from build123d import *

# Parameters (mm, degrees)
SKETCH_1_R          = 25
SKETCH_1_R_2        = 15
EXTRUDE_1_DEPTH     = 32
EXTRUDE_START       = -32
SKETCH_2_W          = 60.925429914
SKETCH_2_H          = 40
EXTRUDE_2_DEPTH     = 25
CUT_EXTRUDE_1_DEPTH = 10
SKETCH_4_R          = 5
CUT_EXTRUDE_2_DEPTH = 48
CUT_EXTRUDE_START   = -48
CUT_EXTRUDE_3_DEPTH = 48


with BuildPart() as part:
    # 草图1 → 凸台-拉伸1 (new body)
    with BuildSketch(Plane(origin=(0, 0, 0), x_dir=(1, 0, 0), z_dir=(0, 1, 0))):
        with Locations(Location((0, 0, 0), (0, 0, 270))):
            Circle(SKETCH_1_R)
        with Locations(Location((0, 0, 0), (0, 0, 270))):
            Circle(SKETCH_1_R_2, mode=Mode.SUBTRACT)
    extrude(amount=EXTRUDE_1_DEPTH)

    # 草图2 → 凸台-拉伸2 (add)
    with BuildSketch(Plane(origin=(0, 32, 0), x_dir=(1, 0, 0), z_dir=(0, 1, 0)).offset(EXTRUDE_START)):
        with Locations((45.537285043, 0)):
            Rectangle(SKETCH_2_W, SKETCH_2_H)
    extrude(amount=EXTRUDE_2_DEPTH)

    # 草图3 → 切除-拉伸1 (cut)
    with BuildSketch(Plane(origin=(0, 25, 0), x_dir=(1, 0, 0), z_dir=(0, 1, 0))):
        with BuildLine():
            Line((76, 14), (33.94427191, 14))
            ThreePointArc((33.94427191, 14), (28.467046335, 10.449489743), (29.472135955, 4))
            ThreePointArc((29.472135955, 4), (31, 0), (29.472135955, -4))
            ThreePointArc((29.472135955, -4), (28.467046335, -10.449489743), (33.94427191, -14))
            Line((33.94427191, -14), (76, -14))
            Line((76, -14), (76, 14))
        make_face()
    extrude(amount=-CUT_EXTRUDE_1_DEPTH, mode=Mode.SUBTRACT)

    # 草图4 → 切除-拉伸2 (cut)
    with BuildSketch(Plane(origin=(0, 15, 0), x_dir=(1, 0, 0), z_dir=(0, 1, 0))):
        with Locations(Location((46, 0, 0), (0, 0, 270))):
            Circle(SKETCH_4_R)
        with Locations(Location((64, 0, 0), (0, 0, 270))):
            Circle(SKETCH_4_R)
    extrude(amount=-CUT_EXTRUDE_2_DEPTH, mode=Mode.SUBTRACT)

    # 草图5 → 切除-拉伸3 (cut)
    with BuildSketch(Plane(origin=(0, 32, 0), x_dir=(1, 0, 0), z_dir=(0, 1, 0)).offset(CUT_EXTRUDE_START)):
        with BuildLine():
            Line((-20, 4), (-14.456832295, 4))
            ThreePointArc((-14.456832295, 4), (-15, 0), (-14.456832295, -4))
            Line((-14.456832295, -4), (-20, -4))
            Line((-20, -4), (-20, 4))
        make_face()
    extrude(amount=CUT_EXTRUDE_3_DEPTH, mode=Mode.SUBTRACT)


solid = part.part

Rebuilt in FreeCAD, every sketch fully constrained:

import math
import FreeCAD as App
import Part
import Sketcher
from FreeCAD import Vector


def add_polygon(sketch, points):
    """Adds a closed chain of lines whose ends are joined by coincident constraints."""
    first, n = sketch.GeometryCount, len(points)
    for a, b in zip(points, points[1:] + points[:1]):
        sketch.addGeometry(Part.LineSegment(App.Vector(*a, 0), App.Vector(*b, 0)), False)
    for i in range(n):
        sketch.addConstraint(Sketcher.Constraint("Coincident", first + i, 2, first + (i + 1) % n, 1))

doc = App.newDocument("Part")
body = doc.addObject("PartDesign::Body", "Body")

# Sketch on XZ plane
sketch1 = body.newObject("Sketcher::SketchObject", "Sketch")
sketch1.AttachmentSupport = (doc.getObject("XZ_Plane"), [""])
sketch1.MapMode = "FlatFace"
sketch1.addGeometry([
    Part.Circle(Vector(0, 0, 0), Vector(0, 0, 1), 25),
    Part.Circle(Vector(0, 0, 0), Vector(0, 0, 1), 15),
], False)
sketch1.addConstraint([
    Sketcher.Constraint("Coincident", 0, 3, -1, 1),
    Sketcher.Constraint("Coincident", 1, 3, -1, 1),
    Sketcher.Constraint("Diameter", 0, 50.0),
    Sketcher.Constraint("Diameter", 1, 30.0),
])
pad1 = body.newObject("PartDesign::Pad", "Pad")
pad1.Profile = sketch1
pad1.Length = 32
pad1.Reversed = True

# Sketch on XZ plane
sketch2 = body.newObject("Sketcher::SketchObject", "Sketch001")
sketch2.AttachmentSupport = (doc.getObject("XZ_Plane"), [""])
sketch2.MapMode = "FlatFace"
add_polygon(sketch2, [(15, -20), (15, 20), (76, 20), (76, -20)])  # lines 0-3
sketch2.addConstraint([
    Sketcher.Constraint("Vertical", 0),
    Sketcher.Constraint("Horizontal", 1),
    Sketcher.Constraint("Vertical", 2),
    Sketcher.Constraint("Horizontal", 3),
    Sketcher.Constraint("DistanceY", 0, 1, 0, 2, 40.0),
    Sketcher.Constraint("DistanceY", -1, 1, 0, 2, 20.0),
    Sketcher.Constraint("DistanceX", -1, 1, 1, 2, 76.0),
    Sketcher.Constraint("DistanceX", 1, 1, 1, 2, 60.92543),
])
pad2 = body.newObject("PartDesign::Pad", "Pad001")
pad2.Profile = sketch2
pad2.Length = 25
pad2.Reversed = True

# Sketch on XZ plane
sketch3 = body.newObject("Sketcher::SketchObject", "Sketch002")
sketch3.AttachmentSupport = (doc.getObject("XZ_Plane"), [""])
sketch3.MapMode = "FlatFace"
sketch3.AttachmentOffset = App.Placement(Vector(0, 0, -25), App.Rotation())
sketch3.addGeometry([
    Part.LineSegment(Vector(76, -14, 0), Vector(34, -14, 0)),  # 0
    Part.ArcOfCircle(Part.Circle(Vector(34, -8, 0), Vector(0, 0, 1), 6), math.radians(138), math.radians(270)),  # 1
    Part.ArcOfCircle(Part.Circle(Vector(25, 0, 0), Vector(0, 0, 1), 6), math.radians(-42), math.radians(42)),  # 2
    Part.ArcOfCircle(Part.Circle(Vector(34, 8, 0), Vector(0, 0, 1), 6), math.radians(90), math.radians(222)),  # 3
    Part.LineSegment(Vector(34, 14, 0), Vector(76, 14, 0)),  # 4
    Part.LineSegment(Vector(76, 14, 0), Vector(76, -14, 0)),  # 5
], False)
sketch3.addConstraint([
    Sketcher.Constraint("Tangent", 0, 2, 1, 2),
    Sketcher.Constraint("Tangent", 1, 1, 2, 1),
    Sketcher.Constraint("Tangent", 2, 2, 3, 2),
    Sketcher.Constraint("Tangent", 3, 1, 4, 1),
    Sketcher.Constraint("Coincident", 4, 2, 5, 1),
    Sketcher.Constraint("Coincident", 5, 2, 0, 1),
    Sketcher.Constraint("Horizontal", 0),
    Sketcher.Constraint("Horizontal", 4),
    Sketcher.Constraint("Vertical", 5),
    Sketcher.Constraint("Equal", 1, 2),
    Sketcher.Constraint("Equal", 2, 3),
    Sketcher.Constraint("Symmetric", 1, 3, 3, 3, -1),
    Sketcher.Constraint("Radius", 1, 6.0),
    Sketcher.Constraint("DistanceY", 5, 2, 5, 1, 28.0),
    Sketcher.Constraint("DistanceX", -1, 1, 2, 3, 25.0),
    Sketcher.Constraint("DistanceX", -1, 1, 4, 2, 76.0),
])
pocket1 = body.newObject("PartDesign::Pocket", "Pocket")
pocket1.Profile = sketch3
pocket1.Length = 10
pocket1.Reversed = True

# Sketch on XZ plane
sketch4 = body.newObject("Sketcher::SketchObject", "Sketch003")
sketch4.AttachmentSupport = (doc.getObject("XZ_Plane"), [""])
sketch4.MapMode = "FlatFace"
sketch4.AttachmentOffset = App.Placement(Vector(0, 0, -15), App.Rotation())
sketch4.addGeometry([
    Part.Circle(Vector(46, 0, 0), Vector(0, 0, 1), 5),
    Part.Circle(Vector(64, 0, 0), Vector(0, 0, 1), 5),
], False)
sketch4.addConstraint([
    Sketcher.Constraint("Equal", 0, 1),
    Sketcher.Constraint("PointOnObject", 0, 3, -1),
    Sketcher.Constraint("PointOnObject", 1, 3, -1),
    Sketcher.Constraint("Diameter", 0, 10.0),
    Sketcher.Constraint("DistanceX", -1, 1, 0, 3, 46.0),
    Sketcher.Constraint("DistanceX", -1, 1, 1, 3, 64.0),
])
pocket2 = body.newObject("PartDesign::Pocket", "Pocket001")
pocket2.Profile = sketch4
pocket2.Length = 48
pocket2.Reversed = True

# Sketch on XZ plane
sketch5 = body.newObject("Sketcher::SketchObject", "Sketch004")
sketch5.AttachmentSupport = (doc.getObject("XZ_Plane"), [""])
sketch5.MapMode = "FlatFace"
sketch5.AttachmentOffset = App.Placement(Vector(0, 0, 16), App.Rotation())
sketch5.addGeometry([
    Part.LineSegment(Vector(-14, -4, 0), Vector(-20, -4, 0)),
    Part.LineSegment(Vector(-20, -4, 0), Vector(-20, 4, 0)),
    Part.LineSegment(Vector(-20, 4, 0), Vector(-14, 4, 0)),
    Part.ArcOfCircle(Part.Circle(Vector(0, 0, 0), Vector(0, 0, 1), 15), math.radians(165), math.radians(195)),
], False)
sketch5.addConstraint([
    Sketcher.Constraint("Coincident", 0, 2, 1, 1),
    Sketcher.Constraint("Coincident", 1, 2, 2, 1),
    Sketcher.Constraint("Coincident", 2, 2, 3, 1),
    Sketcher.Constraint("Coincident", 3, 2, 0, 1),
    Sketcher.Constraint("Horizontal", 0),
    Sketcher.Constraint("Vertical", 1),
    Sketcher.Constraint("Horizontal", 2),
    Sketcher.Constraint("Coincident", 3, 3, -1, 1),
    Sketcher.Constraint("Vertical", 2, 2, 3, 2),
    Sketcher.Constraint("Radius", 3, 15.0),
    Sketcher.Constraint("DistanceY", 1, 1, 1, 2, 8.0),
    Sketcher.Constraint("DistanceX", 0, 2, -1, 1, 20.0),
])
pocket3 = body.newObject("PartDesign::Pocket", "Pocket002")
pocket3.Profile = sketch5
pocket3.Length = 48

doc.recompute()
